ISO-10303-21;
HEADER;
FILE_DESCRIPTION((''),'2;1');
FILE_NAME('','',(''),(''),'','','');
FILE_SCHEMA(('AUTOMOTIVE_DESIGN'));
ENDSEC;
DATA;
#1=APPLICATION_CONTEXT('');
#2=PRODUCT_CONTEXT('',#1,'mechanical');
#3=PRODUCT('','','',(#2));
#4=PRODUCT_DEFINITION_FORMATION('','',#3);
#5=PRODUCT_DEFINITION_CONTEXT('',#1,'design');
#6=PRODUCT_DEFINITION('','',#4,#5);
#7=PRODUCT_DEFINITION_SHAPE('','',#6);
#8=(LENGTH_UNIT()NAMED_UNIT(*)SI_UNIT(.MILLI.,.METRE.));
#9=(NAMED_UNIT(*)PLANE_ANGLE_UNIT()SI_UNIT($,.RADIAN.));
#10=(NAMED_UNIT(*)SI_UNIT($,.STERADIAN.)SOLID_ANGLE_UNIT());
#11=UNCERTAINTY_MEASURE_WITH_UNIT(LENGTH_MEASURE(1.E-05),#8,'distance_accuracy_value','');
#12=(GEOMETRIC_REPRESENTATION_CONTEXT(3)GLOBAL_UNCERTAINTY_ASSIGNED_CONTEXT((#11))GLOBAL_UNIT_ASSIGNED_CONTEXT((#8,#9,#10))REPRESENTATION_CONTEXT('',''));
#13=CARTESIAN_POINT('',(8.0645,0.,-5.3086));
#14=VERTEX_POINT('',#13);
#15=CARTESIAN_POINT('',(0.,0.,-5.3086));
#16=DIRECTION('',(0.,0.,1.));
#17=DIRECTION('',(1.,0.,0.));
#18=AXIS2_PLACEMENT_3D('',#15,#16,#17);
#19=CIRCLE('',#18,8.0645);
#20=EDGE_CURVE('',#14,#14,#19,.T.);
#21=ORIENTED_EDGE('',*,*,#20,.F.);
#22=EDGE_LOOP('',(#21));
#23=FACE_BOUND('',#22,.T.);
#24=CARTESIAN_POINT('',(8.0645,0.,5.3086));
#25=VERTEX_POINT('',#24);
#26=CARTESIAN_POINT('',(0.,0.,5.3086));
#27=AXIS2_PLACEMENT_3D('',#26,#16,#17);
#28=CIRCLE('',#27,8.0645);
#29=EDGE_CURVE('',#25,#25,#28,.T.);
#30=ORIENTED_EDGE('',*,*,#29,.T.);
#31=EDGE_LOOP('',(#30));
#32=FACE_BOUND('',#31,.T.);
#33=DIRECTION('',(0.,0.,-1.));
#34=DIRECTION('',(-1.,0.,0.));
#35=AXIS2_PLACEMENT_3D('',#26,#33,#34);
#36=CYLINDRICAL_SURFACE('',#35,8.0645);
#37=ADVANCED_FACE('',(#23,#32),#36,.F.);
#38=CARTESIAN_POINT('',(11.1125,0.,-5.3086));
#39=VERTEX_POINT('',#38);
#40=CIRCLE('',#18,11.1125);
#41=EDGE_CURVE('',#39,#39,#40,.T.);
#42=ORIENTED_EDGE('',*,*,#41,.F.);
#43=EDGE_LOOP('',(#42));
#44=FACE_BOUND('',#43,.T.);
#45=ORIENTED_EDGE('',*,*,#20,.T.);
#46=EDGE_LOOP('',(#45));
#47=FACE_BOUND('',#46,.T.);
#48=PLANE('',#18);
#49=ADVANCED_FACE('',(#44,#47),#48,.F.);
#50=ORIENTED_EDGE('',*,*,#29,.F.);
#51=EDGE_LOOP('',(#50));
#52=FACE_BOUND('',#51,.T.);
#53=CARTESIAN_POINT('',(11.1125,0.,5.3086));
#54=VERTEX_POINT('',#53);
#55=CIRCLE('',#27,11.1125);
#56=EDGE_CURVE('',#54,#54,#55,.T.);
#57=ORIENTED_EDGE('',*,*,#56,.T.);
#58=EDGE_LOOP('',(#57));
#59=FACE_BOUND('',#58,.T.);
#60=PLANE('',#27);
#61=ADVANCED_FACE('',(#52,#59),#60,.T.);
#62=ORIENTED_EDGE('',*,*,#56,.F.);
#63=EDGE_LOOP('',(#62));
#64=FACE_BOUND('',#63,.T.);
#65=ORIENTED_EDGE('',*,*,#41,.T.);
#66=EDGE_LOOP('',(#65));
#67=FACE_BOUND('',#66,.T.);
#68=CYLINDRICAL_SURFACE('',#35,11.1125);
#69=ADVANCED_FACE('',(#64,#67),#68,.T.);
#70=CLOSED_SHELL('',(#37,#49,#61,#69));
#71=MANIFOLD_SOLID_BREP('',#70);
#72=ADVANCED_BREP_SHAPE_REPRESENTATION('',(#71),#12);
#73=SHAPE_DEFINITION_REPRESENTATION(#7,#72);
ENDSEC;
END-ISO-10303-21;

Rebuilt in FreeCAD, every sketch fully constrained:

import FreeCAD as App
import Part
import Sketcher

V = App.Vector
Q = App.Units.Quantity

doc = App.newDocument("Part")
body = doc.addObject("PartDesign::Body", "Body")

# Sketch on XY plane
sketch1 = doc.addObject("Sketcher::SketchObject", "Sketch")
body.addObject(sketch1)
sketch1.AttachmentSupport = (doc.XY_Plane, [""])
sketch1.MapMode = "FlatFace"
sketch1.addGeometry([
    Part.Circle(V(0, 0, 0), V(0, 0, 1), 11.1125),
    Part.Circle(V(0, 0, 0), V(0, 0, 1), 8.0645),
], False)
sketch1.addConstraint([
    Sketcher.Constraint("Coincident", 0, 3, -1, 1),
    Sketcher.Constraint("Coincident", 1, 3, -1, 1),
    Sketcher.Constraint("Diameter", 0, Q("0.875 in")),
    Sketcher.Constraint("Diameter", 1, Q("0.635 in")),
])
pad1 = doc.addObject("PartDesign::Pad", "Pad")
body.addObject(pad1)
pad1.Profile = sketch1
pad1.Length = Q("0.418 in")
pad1.Midplane = True

doc.recompute()
